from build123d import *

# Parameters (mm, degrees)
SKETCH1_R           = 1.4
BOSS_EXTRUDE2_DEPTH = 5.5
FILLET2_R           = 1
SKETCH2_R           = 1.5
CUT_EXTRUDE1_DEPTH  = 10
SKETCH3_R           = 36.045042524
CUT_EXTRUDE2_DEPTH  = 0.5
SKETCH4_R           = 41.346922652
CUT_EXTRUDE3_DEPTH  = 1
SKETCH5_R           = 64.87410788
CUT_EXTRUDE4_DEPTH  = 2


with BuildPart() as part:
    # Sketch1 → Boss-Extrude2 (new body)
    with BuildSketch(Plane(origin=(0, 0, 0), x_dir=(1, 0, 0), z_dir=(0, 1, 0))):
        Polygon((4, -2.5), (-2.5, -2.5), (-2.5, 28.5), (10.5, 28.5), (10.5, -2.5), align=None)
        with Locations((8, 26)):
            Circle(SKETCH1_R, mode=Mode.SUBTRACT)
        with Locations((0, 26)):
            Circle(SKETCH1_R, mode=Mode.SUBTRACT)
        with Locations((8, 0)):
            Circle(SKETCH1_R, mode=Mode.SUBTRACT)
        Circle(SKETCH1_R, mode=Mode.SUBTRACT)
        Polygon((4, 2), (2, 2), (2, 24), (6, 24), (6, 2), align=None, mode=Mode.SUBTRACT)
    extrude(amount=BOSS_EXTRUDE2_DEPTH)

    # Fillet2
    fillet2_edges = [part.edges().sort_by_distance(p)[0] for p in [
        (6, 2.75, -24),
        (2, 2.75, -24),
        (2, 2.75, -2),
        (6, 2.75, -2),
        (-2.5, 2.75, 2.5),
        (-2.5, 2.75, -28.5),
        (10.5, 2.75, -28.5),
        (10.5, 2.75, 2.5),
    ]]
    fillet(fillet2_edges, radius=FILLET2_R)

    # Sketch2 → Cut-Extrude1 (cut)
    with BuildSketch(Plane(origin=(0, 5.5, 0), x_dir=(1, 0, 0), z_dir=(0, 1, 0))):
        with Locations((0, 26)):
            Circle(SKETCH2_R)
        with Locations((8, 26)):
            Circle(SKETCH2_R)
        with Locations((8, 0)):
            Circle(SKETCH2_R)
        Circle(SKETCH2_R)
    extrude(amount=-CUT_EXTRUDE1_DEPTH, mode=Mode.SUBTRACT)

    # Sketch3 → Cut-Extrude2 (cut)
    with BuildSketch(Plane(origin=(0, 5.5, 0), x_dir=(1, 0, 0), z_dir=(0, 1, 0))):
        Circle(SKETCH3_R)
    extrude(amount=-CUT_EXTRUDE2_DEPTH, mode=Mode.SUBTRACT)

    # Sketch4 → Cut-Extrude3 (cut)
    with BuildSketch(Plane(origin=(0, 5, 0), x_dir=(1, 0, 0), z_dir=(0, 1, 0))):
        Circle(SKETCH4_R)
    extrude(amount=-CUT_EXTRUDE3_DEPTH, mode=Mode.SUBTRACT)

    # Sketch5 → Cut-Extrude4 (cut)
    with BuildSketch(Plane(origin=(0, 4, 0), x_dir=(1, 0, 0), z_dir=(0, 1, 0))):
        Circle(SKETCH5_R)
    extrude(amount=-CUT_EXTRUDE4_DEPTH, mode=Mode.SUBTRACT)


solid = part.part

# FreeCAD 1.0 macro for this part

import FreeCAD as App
import Part
import Sketcher
from FreeCAD import Vector


def edges_at(feature, points):
    """Names of the edges that pass closest to the given points."""
    edges = feature.Shape.Edges
    near = lambda p: min(range(len(edges)), key=lambda i: edges[i].distToShape(Part.Vertex(*p))[0])
    return sorted({f"Edge{near(p) + 1}" for p in points})

doc = App.newDocument("Part")
params = doc.addObject("Spreadsheet::Sheet", "Params")
for row, (alias, value) in enumerate([
    ("sketch1_diameter", "2.8 mm"),
    ("sketch1_width", "13 mm"),
    ("sketch1_width2", "4 mm"),
    ("sketch1_height", "31 mm"),
    ("sketch1_height2", "22 mm"),
    ("pad1_length", "5.5 mm"),
    ("fillet_radius", "1 mm"),
    ("sketch2_diameter", "3 mm"),
    ("pocket1_length", "10 mm"),
    ("pocket2_length", "0.5 mm"),
    ("pocket3_length", "1 mm"),
    ("pocket4_length", "2 mm"),
], start=1):
    params.set(f"A{row}", alias)
    params.set(f"B{row}", "=" + value)
    params.setAlias(f"B{row}", alias)

body = doc.addObject("PartDesign::Body", "Body")

sketch1 = body.newObject("Sketcher::SketchObject", "Sketch")
sketch1.AttachmentSupport = (doc.getObject("XZ_Plane"), [""])
sketch1.MapMode = "FlatFace"
sketch1.addGeometry(Part.LineSegment(Vector(-2.5, 2.5, 0), Vector(10.5, 2.5, 0)), False)
sketch1.addGeometry(Part.LineSegment(Vector(10.5, 2.5, 0), Vector(10.5, -28.5, 0)), False)
sketch1.addGeometry(Part.LineSegment(Vector(10.5, -28.5, 0), Vector(-2.5, -28.5, 0)), False)
sketch1.addGeometry(Part.LineSegment(Vector(-2.5, -28.5, 0), Vector(-2.5, 2.5, 0)), False)
sketch1.addGeometry(Part.Circle(Vector(8, 0, 0), Vector(0, 0, 1), 1.4), False)
sketch1.addGeometry(Part.Circle(Vector(0, 0, 0), Vector(0, 0, 1), 1.4), False)
sketch1.addGeometry(Part.Circle(Vector(8, -26, 0), Vector(0, 0, 1), 1.4), False)
sketch1.addGeometry(Part.LineSegment(Vector(2, -2, 0), Vector(2, -24, 0)), False)
sketch1.addGeometry(Part.LineSegment(Vector(2, -24, 0), Vector(6, -24, 0)), False)
sketch1.addGeometry(Part.LineSegment(Vector(6, -24, 0), Vector(6, -2, 0)), False)
sketch1.addGeometry(Part.LineSegment(Vector(6, -2, 0), Vector(2, -2, 0)), False)
sketch1.addGeometry(Part.Circle(Vector(0, -26, 0), Vector(0, 0, 1), 1.4), False)
sketch1.addConstraint(Sketcher.Constraint("Coincident", 0, 2, 1, 1))
sketch1.addConstraint(Sketcher.Constraint("Coincident", 1, 2, 2, 1))
sketch1.addConstraint(Sketcher.Constraint("Coincident", 2, 2, 3, 1))
sketch1.addConstraint(Sketcher.Constraint("Coincident", 3, 2, 0, 1))
sketch1.addConstraint(Sketcher.Constraint("Coincident", 7, 2, 8, 1))
sketch1.addConstraint(Sketcher.Constraint("Coincident", 8, 2, 9, 1))
sketch1.addConstraint(Sketcher.Constraint("Coincident", 9, 2, 10, 1))
sketch1.addConstraint(Sketcher.Constraint("Coincident", 10, 2, 7, 1))
sketch1.addConstraint(Sketcher.Constraint("Horizontal", 0))
sketch1.addConstraint(Sketcher.Constraint("Vertical", 1))
sketch1.addConstraint(Sketcher.Constraint("Horizontal", 2))
sketch1.addConstraint(Sketcher.Constraint("Vertical", 3))
sketch1.addConstraint(Sketcher.Constraint("Vertical", 7))
sketch1.addConstraint(Sketcher.Constraint("Horizontal", 8))
sketch1.addConstraint(Sketcher.Constraint("Vertical", 9))
sketch1.addConstraint(Sketcher.Constraint("Horizontal", 10))
sketch1.addConstraint(Sketcher.Constraint("Coincident", 5, 3, -1, 1))
sketch1.addConstraint(Sketcher.Constraint("Equal", 4, 5))
sketch1.addConstraint(Sketcher.Constraint("Equal", 5, 6))
sketch1.addConstraint(Sketcher.Constraint("Equal", 6, 11))
sketch1.addConstraint(Sketcher.Constraint("PointOnObject", 4, 3, -1))
sketch1.addConstraint(Sketcher.Constraint("PointOnObject", 11, 3, -2))
sketch1.addConstraint(Sketcher.Constraint("Horizontal", 6, 3, 11, 3))
sketch1.addConstraint(Sketcher.Constraint("Vertical", 4, 3, 6, 3))
sketch1.addConstraint(Sketcher.Constraint("Diameter", 4, 2.8))
sketch1.addConstraint(Sketcher.Constraint("DistanceX", 0, 1, 0, 2, 13.0))
sketch1.addConstraint(Sketcher.Constraint("DistanceX", 8, 1, 8, 2, 4.0))
sketch1.addConstraint(Sketcher.Constraint("DistanceY", 1, 2, 1, 1, 31.0))
sketch1.addConstraint(Sketcher.Constraint("DistanceY", 7, 2, 7, 1, 22.0))
sketch1.addConstraint(Sketcher.Constraint("DistanceX", -1, 1, 4, 3, 8.0))
sketch1.addConstraint(Sketcher.Constraint("DistanceY", 6, 3, -1, 1, 26.0))
sketch1.addConstraint(Sketcher.Constraint("DistanceX", -1, 1, 7, 2, 2.0))
sketch1.addConstraint(Sketcher.Constraint("DistanceY", 7, 2, -1, 1, 24.0))
sketch1.addConstraint(Sketcher.Constraint("DistanceX", -1, 1, 0, 2, 10.5))
sketch1.addConstraint(Sketcher.Constraint("DistanceY", -1, 1, 0, 2, 2.5))
sketch1.setExpression("Constraints[24]", "Params.sketch1_diameter")
sketch1.setExpression("Constraints[25]", "Params.sketch1_width")
sketch1.setExpression("Constraints[26]", "Params.sketch1_width2")
sketch1.setExpression("Constraints[27]", "Params.sketch1_height")
sketch1.setExpression("Constraints[28]", "Params.sketch1_height2")
pad1 = body.newObject("PartDesign::Pad", "Pad")
pad1.Profile = sketch1
pad1.setExpression("Length", "Params.pad1_length")
pad1.Reversed = True
doc.recompute()

fillet = body.newObject("PartDesign::Fillet", "Fillet")
fillet.Base = (pad1, edges_at(pad1, [
    (6, 2.75, -24),
    (2, 2.75, -24),
    (2, 2.75, -2),
    (6, 2.75, -2),
    (-2.5, 2.75, 2.5),
    (-2.5, 2.75, -28.5),
    (10.5, 2.75, -28.5),
    (10.5, 2.75, 2.5),
]))
fillet.setExpression("Radius", "Params.fillet_radius")

sketch2 = body.newObject("Sketcher::SketchObject", "Sketch001")
sketch2.AttachmentSupport = (doc.getObject("XZ_Plane"), [""])
sketch2.MapMode = "FlatFace"
sketch2.AttachmentOffset = App.Placement(Vector(0, 0, -5.5), App.Rotation())
sketch2.addGeometry(Part.Circle(Vector(0, -26, 0), Vector(0, 0, 1), 1.5), False)
sketch2.addGeometry(Part.Circle(Vector(8, -26, 0), Vector(0, 0, 1), 1.5), False)
sketch2.addGeometry(Part.Circle(Vector(8, 0, 0), Vector(0, 0, 1), 1.5), False)
sketch2.addGeometry(Part.Circle(Vector(0, 0, 0), Vector(0, 0, 1), 1.5), False)
sketch2.addConstraint(Sketcher.Constraint("Coincident", 3, 3, -1, 1))
sketch2.addConstraint(Sketcher.Constraint("Equal", 0, 1))
sketch2.addConstraint(Sketcher.Constraint("Equal", 1, 2))
sketch2.addConstraint(Sketcher.Constraint("Equal", 2, 3))
sketch2.addConstraint(Sketcher.Constraint("PointOnObject", 0, 3, -2))
sketch2.addConstraint(Sketcher.Constraint("PointOnObject", 2, 3, -1))
sketch2.addConstraint(Sketcher.Constraint("Horizontal", 0, 3, 1, 3))
sketch2.addConstraint(Sketcher.Constraint("Vertical", 1, 3, 2, 3))
sketch2.addConstraint(Sketcher.Constraint("Diameter", 0, 3.0))
sketch2.addConstraint(Sketcher.Constraint("DistanceY", 0, 3, -1, 1, 26.0))
sketch2.addConstraint(Sketcher.Constraint("DistanceX", -1, 1, 1, 3, 8.0))
sketch2.setExpression("Constraints[8]", "Params.sketch2_diameter")
pocket1 = body.newObject("PartDesign::Pocket", "Pocket")
pocket1.Profile = sketch2
pocket1.setExpression("Length", "Params.pocket1_length")
pocket1.Reversed = True

sketch3 = body.newObject("Sketcher::SketchObject", "Sketch002")
sketch3.AttachmentSupport = (doc.getObject("XZ_Plane"), [""])
sketch3.MapMode = "FlatFace"
sketch3.AttachmentOffset = App.Placement(Vector(0, 0, -5.5), App.Rotation())
sketch3.addGeometry(Part.Circle(Vector(0, 0, 0), Vector(0, 0, 1), 36), False)
sketch3.addConstraint(Sketcher.Constraint("Coincident", 0, 3, -1, 1))
sketch3.addConstraint(Sketcher.Constraint("Diameter", 0, 72.090085))
pocket2 = body.newObject("PartDesign::Pocket", "Pocket001")
pocket2.Profile = sketch3
pocket2.setExpression("Length", "Params.pocket2_length")
pocket2.Reversed = True

sketch4 = body.newObject("Sketcher::SketchObject", "Sketch003")
sketch4.AttachmentSupport = (doc.getObject("XZ_Plane"), [""])
sketch4.MapMode = "FlatFace"
sketch4.AttachmentOffset = App.Placement(Vector(0, 0, -5), App.Rotation())
sketch4.addGeometry(Part.Circle(Vector(0, 0, 0), Vector(0, 0, 1), 41), False)
sketch4.addConstraint(Sketcher.Constraint("Coincident", 0, 3, -1, 1))
sketch4.addConstraint(Sketcher.Constraint("Diameter", 0, 82.693845))
pocket3 = body.newObject("PartDesign::Pocket", "Pocket002")
pocket3.Profile = sketch4
pocket3.setExpression("Length", "Params.pocket3_length")
pocket3.Reversed = True

sketch5 = body.newObject("Sketcher::SketchObject", "Sketch004")
sketch5.AttachmentSupport = (doc.getObject("XZ_Plane"), [""])
sketch5.MapMode = "FlatFace"
sketch5.AttachmentOffset = App.Placement(Vector(0, 0, -4), App.Rotation())
sketch5.addGeometry(Part.Circle(Vector(0, 0, 0), Vector(0, 0, 1), 65), False)
sketch5.addConstraint(Sketcher.Constraint("Coincident", 0, 3, -1, 1))
sketch5.addConstraint(Sketcher.Constraint("Diameter", 0, 129.748216))
pocket4 = body.newObject("PartDesign::Pocket", "Pocket003")
pocket4.Profile = sketch5
pocket4.setExpression("Length", "Params.pocket4_length")
pocket4.Reversed = True

doc.recompute()
